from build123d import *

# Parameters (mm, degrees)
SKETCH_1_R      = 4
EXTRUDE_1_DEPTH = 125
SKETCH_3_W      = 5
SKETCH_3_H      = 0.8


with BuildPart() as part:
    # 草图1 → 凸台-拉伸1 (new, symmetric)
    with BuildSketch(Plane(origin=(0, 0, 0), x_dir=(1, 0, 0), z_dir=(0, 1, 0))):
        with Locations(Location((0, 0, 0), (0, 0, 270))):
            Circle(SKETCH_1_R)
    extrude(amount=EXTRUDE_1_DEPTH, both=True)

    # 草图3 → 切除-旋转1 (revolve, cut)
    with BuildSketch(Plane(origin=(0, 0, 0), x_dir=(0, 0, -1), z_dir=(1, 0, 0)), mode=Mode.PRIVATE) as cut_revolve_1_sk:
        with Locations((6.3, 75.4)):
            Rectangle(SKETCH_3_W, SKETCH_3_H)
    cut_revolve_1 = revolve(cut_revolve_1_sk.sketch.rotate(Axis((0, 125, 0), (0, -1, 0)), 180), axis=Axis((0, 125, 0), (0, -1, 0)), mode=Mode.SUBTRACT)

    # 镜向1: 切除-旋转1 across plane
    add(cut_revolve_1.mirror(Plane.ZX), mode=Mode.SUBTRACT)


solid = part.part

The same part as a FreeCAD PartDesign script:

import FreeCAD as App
import Part
import Sketcher
from FreeCAD import Vector


def add_polygon(sketch, points):
    """Adds a closed chain of lines whose ends are joined by coincident constraints."""
    first, n = sketch.GeometryCount, len(points)
    for a, b in zip(points, points[1:] + points[:1]):
        sketch.addGeometry(Part.LineSegment(App.Vector(*a, 0), App.Vector(*b, 0)), False)
    for i in range(n):
        sketch.addConstraint(Sketcher.Constraint("Coincident", first + i, 2, first + (i + 1) % n, 1))

doc = App.newDocument("Part")
body = doc.addObject("PartDesign::Body", "Body")

sketch1 = body.newObject("Sketcher::SketchObject", "Sketch")
sketch1.AttachmentSupport = (doc.getObject("XZ_Plane"), [""])
sketch1.MapMode = "FlatFace"
sketch1.addGeometry(Part.Circle(Vector(0, 0, 0), Vector(0, 0, 1), 4), False)
sketch1.addConstraint([
    Sketcher.Constraint("Coincident", 0, 3, -1, 1),
    Sketcher.Constraint("Diameter", 0, 8.0),
])
pad1 = body.newObject("PartDesign::Pad", "Pad")
pad1.Profile = sketch1
pad1.Length = 250
pad1.Midplane = True

sketch2 = body.newObject("Sketcher::SketchObject", "Sketch001")
sketch2.AttachmentSupport = (doc.getObject("YZ_Plane"), [""])
sketch2.MapMode = "FlatFace"
add_polygon(sketch2, [(75.8, -3.8), (75, -3.8), (75, -8.8), (75.8, -8.8)])
sketch2.addConstraint([
    Sketcher.Constraint("Horizontal", 0),
    Sketcher.Constraint("Vertical", 1),
    Sketcher.Constraint("Horizontal", 2),
    Sketcher.Constraint("Vertical", 3),
    Sketcher.Constraint("DistanceY", 1, 2, 1, 1, 5.0),
    Sketcher.Constraint("DistanceX", 0, 2, 0, 1, 0.8),
    Sketcher.Constraint("DistanceX", -1, 1, 0, 2, 75.0),
    Sketcher.Constraint("DistanceY", 0, 2, -1, 1, 3.8),
])
groove = body.newObject("PartDesign::Groove", "Groove")
groove.Profile = sketch2
groove.ReferenceAxis = (sketch2, ["H_Axis"])
groove.Angle = 360
doc.recompute()

mirrored = body.newObject("PartDesign::Mirrored", "Mirrored")
mirrored.Originals = [groove]
mirrored.MirrorPlane = (doc.getObject("XZ_Plane"), [""])
body.Tip = mirrored

doc.recompute()
